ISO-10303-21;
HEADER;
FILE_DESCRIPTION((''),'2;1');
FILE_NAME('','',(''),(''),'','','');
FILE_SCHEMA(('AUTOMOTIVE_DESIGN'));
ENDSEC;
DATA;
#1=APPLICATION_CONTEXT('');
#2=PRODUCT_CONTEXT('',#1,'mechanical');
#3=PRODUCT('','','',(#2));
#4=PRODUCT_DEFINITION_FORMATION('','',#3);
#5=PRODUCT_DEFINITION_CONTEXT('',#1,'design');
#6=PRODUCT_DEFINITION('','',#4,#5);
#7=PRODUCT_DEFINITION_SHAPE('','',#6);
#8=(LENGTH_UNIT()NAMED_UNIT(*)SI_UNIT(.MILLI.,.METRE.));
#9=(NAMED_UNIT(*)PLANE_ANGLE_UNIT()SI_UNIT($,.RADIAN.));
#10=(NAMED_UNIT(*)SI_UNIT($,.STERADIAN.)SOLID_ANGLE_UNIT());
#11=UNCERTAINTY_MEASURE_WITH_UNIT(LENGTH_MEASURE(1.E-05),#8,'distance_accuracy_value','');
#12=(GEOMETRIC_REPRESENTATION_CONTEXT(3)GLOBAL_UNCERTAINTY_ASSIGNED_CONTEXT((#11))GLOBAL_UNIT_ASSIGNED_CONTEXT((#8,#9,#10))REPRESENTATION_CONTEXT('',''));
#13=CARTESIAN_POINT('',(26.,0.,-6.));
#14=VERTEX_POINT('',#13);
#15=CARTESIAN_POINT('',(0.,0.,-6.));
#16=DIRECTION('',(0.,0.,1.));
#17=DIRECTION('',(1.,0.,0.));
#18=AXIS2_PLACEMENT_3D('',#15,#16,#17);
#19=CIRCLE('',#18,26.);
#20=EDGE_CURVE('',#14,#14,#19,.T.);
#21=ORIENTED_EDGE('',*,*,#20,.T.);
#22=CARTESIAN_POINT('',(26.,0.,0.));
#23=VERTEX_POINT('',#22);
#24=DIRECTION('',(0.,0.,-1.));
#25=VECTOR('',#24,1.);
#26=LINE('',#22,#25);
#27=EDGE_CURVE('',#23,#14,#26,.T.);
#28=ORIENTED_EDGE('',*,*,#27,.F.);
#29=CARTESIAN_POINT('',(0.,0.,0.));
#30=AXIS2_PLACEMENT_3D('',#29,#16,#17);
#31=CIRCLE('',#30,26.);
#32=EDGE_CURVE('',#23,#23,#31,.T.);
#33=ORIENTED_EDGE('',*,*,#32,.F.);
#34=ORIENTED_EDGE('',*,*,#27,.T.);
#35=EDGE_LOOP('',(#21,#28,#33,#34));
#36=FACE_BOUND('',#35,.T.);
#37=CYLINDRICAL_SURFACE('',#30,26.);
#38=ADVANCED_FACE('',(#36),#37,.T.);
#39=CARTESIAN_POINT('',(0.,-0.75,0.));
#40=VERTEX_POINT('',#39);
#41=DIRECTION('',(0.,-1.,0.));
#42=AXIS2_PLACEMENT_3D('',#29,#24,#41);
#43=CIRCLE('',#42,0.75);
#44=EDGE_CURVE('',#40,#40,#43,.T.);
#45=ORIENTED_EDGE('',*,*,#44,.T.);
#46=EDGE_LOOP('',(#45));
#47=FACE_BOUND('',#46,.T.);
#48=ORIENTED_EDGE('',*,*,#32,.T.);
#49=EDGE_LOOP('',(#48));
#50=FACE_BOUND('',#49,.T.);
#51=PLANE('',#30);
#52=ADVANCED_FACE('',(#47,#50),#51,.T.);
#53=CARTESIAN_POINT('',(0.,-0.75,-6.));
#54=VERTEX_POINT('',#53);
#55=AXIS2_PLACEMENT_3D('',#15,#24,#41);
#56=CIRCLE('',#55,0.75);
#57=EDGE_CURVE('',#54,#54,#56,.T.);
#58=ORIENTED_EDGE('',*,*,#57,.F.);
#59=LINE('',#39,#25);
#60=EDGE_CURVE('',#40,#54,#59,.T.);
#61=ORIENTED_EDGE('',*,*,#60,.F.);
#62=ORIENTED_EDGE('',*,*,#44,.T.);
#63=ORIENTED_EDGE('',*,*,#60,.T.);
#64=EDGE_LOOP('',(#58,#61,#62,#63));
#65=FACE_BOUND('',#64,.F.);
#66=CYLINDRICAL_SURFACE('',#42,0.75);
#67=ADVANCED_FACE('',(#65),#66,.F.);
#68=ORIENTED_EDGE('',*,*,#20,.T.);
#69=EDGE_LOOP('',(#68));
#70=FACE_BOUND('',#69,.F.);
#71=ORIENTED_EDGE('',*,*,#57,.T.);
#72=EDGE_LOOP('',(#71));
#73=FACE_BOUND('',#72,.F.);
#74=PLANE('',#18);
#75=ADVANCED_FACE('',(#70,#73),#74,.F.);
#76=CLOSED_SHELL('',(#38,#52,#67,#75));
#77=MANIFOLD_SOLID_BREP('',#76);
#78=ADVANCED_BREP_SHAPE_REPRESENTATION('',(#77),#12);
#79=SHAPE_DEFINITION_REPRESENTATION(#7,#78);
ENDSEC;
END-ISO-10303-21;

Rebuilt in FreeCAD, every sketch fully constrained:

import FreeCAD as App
import Part
import Sketcher

doc = App.newDocument("Part")
body = doc.addObject("PartDesign::Body", "Body")

# Sketch on XY plane
sketch1 = body.newObject("Sketcher::SketchObject", "Sketch")
sketch1.AttachmentSupport = (doc.getObject("XY_Plane"), [""])
sketch1.MapMode = "FlatFace"
sketch1.addGeometry(Part.Circle(App.Vector(0, 0, 0), App.Vector(0, 0, 1), 26), False)
sketch1.addConstraint([
    Sketcher.Constraint("Coincident", 0, 3, -1, 1),
    Sketcher.Constraint("Diameter", 0, 52.0),
])
pad1 = body.newObject("PartDesign::Pad", "Pad")
pad1.Profile = sketch1
pad1.Length = 6
pad1.Reversed = True

# Sketch on XY plane
sketch2 = body.newObject("Sketcher::SketchObject", "Sketch001")
sketch2.AttachmentSupport = (doc.getObject("XY_Plane"), [""])
sketch2.MapMode = "FlatFace"
sketch2.addGeometry(Part.Circle(App.Vector(0, 0, 0), App.Vector(0, 0, 1), 0.8), False)
sketch2.addConstraint([
    Sketcher.Constraint("Coincident", 0, 3, -1, 1),
    Sketcher.Constraint("Diameter", 0, 1.5),
])
doc.recompute()
hole = body.newObject("PartDesign::Hole", "Hole")
hole.Profile = sketch2
hole.ThreadType = "None"
hole.Diameter = 1.5
hole.DepthType = "Dimension"
hole.Depth = 6
hole.DrillPoint = "Flat"

doc.recompute()
